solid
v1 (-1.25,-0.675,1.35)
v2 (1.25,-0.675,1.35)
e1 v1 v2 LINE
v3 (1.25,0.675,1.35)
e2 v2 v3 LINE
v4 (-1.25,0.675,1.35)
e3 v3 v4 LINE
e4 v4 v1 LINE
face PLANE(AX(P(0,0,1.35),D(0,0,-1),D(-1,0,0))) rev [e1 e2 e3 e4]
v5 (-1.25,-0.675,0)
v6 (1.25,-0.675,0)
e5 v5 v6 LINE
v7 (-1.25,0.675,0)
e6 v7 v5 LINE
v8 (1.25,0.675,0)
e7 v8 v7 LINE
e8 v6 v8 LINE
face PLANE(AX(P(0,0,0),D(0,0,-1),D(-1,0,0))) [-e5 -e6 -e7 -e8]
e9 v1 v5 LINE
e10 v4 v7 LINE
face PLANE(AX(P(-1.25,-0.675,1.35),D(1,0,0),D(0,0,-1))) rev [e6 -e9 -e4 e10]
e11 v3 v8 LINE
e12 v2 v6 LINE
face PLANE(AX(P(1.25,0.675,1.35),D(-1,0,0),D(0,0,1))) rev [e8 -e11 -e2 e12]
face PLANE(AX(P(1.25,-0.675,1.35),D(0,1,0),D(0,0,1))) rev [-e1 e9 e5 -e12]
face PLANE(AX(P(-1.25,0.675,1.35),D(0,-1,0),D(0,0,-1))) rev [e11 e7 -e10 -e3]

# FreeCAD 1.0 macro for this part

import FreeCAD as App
import Part
import Sketcher

V = App.Vector

doc = App.newDocument("Part")
body = doc.addObject("PartDesign::Body", "Body")

sketch1 = body.newObject("Sketcher::SketchObject", "Sketch")
sketch1.AttachmentSupport = (doc.getObject("XY_Plane"), [""])
sketch1.MapMode = "FlatFace"
sketch1.addGeometry(Part.LineSegment(V(-1.2, 0.7, 0), V(-1.2, -0.7, 0)), False)
sketch1.addGeometry(Part.LineSegment(V(-1.2, -0.7, 0), V(1.2, -0.7, 0)), False)
sketch1.addGeometry(Part.LineSegment(V(1.2, -0.7, 0), V(1.2, 0.7, 0)), False)
sketch1.addGeometry(Part.LineSegment(V(1.2, 0.7, 0), V(-1.2, 0.7, 0)), False)
sketch1.addConstraint(Sketcher.Constraint("Coincident", 0, 2, 1, 1))
sketch1.addConstraint(Sketcher.Constraint("Coincident", 1, 2, 2, 1))
sketch1.addConstraint(Sketcher.Constraint("Coincident", 2, 2, 3, 1))
sketch1.addConstraint(Sketcher.Constraint("Coincident", 3, 2, 0, 1))
sketch1.addConstraint(Sketcher.Constraint("Vertical", 0))
sketch1.addConstraint(Sketcher.Constraint("Horizontal", 1))
sketch1.addConstraint(Sketcher.Constraint("Vertical", 2))
sketch1.addConstraint(Sketcher.Constraint("Horizontal", 3))
sketch1.addConstraint(Sketcher.Constraint("Symmetric", 0, 2, 2, 2, -1, 1))
sketch1.addConstraint(Sketcher.Constraint("DistanceX", 1, 1, 1, 2, 2.5))
sketch1.addConstraint(Sketcher.Constraint("DistanceY", 0, 2, 0, 1, 1.35))
pad1 = body.newObject("PartDesign::Pad", "Pad")
pad1.Profile = sketch1
pad1.Length = 1.35

doc.recompute()
